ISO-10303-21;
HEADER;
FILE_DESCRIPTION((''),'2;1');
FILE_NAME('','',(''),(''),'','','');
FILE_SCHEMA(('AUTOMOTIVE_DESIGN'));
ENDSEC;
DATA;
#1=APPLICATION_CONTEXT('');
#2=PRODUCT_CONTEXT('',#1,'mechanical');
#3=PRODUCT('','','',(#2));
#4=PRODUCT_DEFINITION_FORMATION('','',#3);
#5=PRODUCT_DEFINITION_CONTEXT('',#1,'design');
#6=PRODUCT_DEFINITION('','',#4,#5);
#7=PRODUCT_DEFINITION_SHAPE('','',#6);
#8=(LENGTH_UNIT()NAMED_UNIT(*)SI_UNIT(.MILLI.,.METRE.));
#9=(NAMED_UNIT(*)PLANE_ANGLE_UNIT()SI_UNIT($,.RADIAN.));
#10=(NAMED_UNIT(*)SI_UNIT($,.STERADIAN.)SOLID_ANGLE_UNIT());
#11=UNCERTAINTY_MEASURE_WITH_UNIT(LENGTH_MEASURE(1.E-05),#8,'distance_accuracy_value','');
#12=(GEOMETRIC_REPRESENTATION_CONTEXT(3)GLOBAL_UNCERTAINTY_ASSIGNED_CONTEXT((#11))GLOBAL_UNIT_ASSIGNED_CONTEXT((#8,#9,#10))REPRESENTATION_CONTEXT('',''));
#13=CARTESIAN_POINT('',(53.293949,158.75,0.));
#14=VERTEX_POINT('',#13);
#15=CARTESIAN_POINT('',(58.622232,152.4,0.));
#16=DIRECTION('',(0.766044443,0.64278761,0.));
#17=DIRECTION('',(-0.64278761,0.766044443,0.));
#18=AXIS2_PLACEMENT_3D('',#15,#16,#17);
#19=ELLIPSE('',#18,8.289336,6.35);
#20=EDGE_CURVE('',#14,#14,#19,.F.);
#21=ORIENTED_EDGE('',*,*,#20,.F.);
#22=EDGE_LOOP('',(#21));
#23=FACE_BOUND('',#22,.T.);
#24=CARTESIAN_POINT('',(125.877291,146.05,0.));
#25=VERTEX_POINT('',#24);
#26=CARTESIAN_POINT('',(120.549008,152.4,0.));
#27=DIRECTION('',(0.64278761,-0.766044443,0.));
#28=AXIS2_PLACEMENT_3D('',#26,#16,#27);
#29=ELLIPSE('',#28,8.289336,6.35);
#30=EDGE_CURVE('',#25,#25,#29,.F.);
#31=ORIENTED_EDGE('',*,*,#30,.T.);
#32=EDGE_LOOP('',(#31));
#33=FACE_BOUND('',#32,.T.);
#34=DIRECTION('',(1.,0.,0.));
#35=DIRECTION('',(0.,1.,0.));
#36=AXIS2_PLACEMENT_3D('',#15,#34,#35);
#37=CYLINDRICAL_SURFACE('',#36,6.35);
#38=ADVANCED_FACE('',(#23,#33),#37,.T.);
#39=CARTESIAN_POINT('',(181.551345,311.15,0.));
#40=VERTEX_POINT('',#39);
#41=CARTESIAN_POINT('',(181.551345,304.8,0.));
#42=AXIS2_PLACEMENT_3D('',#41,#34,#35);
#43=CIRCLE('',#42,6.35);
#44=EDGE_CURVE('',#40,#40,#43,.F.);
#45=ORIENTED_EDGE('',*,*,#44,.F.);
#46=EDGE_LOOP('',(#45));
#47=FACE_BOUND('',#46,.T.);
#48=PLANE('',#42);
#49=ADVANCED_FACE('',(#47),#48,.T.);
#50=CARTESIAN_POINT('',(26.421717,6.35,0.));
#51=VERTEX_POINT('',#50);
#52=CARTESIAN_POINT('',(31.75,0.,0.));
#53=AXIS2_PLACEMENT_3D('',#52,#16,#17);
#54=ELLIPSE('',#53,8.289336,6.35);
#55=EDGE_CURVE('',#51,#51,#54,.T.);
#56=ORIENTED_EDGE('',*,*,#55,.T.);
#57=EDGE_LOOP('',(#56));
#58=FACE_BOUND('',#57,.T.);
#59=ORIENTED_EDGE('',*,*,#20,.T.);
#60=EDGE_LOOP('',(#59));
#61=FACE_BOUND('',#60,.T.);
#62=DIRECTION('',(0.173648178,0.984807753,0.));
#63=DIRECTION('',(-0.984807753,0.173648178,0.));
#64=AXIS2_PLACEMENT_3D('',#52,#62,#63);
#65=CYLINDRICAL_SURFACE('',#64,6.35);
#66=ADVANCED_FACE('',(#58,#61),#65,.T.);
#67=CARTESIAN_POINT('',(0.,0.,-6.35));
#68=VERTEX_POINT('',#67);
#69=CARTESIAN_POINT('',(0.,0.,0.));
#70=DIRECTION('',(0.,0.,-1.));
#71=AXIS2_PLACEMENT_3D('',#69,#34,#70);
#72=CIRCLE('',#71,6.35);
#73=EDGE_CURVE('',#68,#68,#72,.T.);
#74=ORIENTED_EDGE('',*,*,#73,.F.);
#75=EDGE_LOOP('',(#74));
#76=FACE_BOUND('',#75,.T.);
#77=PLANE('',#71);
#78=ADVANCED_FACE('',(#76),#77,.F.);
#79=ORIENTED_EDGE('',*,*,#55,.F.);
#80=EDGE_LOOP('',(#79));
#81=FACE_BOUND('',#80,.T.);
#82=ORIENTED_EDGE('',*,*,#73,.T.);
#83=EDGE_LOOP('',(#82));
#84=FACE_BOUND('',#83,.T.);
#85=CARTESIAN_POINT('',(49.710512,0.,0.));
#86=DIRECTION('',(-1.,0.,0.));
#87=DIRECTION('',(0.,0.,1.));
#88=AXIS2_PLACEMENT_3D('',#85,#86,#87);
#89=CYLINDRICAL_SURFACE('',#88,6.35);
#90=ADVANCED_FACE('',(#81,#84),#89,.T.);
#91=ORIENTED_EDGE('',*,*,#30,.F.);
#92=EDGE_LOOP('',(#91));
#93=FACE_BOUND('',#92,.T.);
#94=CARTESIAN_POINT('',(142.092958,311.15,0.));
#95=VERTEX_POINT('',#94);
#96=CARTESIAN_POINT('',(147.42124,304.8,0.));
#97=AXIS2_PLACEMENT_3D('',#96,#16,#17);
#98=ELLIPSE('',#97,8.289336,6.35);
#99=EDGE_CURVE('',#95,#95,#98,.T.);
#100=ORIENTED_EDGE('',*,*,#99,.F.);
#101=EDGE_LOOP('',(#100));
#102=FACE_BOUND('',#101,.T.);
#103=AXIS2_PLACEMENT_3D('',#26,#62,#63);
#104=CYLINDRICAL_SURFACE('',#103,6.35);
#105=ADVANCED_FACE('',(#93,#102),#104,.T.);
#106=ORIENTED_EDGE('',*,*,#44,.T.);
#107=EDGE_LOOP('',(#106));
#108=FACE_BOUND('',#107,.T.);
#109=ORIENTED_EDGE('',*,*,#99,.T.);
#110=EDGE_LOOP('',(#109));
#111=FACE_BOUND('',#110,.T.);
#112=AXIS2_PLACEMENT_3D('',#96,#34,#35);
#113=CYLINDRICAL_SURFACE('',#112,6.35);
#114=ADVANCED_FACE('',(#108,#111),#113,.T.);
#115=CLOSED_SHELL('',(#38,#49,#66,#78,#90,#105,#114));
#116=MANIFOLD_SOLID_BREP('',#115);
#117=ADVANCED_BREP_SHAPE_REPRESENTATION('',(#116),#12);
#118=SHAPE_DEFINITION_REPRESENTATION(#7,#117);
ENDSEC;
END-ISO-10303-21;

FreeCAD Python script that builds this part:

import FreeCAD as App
import Part
import Sketcher
Q = App.Units.Quantity

doc = App.newDocument("Part")
body = doc.addObject("PartDesign::Body", "Body")

sketch1 = body.newObject("Sketcher::SketchObject", "Sketch")
sketch1.AttachmentSupport = (doc.getObject("YZ_Plane"), [""])
sketch1.MapMode = "FlatFace"
sketch1.addGeometry(Part.Circle(App.Vector(0, 0, 0), App.Vector(0, 0, 1), 6.35), False)
sketch1.addConstraint(Sketcher.Constraint("Coincident", 0, 3, -1, 1))
sketch1.addConstraint(Sketcher.Constraint("Diameter", 0, Q("0.5 in")))

sketch2 = body.newObject("Sketcher::SketchObject", "Sketch001")
sketch2.AttachmentSupport = (doc.getObject("XY_Plane"), [""])
sketch2.MapMode = "FlatFace"
sketch2.addGeometry(Part.LineSegment(App.Vector(0, 0, 0), App.Vector(31.75, 0, 0)), False)
sketch2.addGeometry(Part.LineSegment(App.Vector(31.75, 0, 0), App.Vector(58.622232, 152.4, 0)), False)
sketch2.addGeometry(Part.LineSegment(App.Vector(58.622232, 152.4, 0), App.Vector(120.549008, 152.4, 0)), False)
sketch2.addGeometry(Part.LineSegment(App.Vector(120.549008, 152.4, 0), App.Vector(147.42124, 304.8, 0)), False)
sketch2.addGeometry(Part.LineSegment(App.Vector(147.42124, 304.8, 0), App.Vector(181.551345, 304.8, 0)), False)
sketch2.addConstraint(Sketcher.Constraint("Coincident", 0, 2, 1, 1))
sketch2.addConstraint(Sketcher.Constraint("Coincident", 1, 2, 2, 1))
sketch2.addConstraint(Sketcher.Constraint("Coincident", 2, 2, 3, 1))
sketch2.addConstraint(Sketcher.Constraint("Coincident", 3, 2, 4, 1))
sketch2.addConstraint(Sketcher.Constraint("Horizontal", 0))
sketch2.addConstraint(Sketcher.Constraint("Horizontal", 2))
sketch2.addConstraint(Sketcher.Constraint("Horizontal", 4))
sketch2.addConstraint(Sketcher.Constraint("Coincident", 0, 1, -1, 1))
sketch2.addConstraint(Sketcher.Constraint("Parallel", 1, 3))
sketch2.addConstraint(Sketcher.Constraint("Equal", 1, 3))
sketch2.addConstraint(Sketcher.Constraint("DistanceY", -1, 1, 1, 2, Q("6 in")))
sketch2.addConstraint(Sketcher.Constraint("Angle", 1, Q("80 deg")))
sketch2.addConstraint(Sketcher.Constraint("DistanceX", 0, 1, 0, 2, Q("1.25 in")))
sketch2.addConstraint(Sketcher.Constraint("DistanceX", 2, 1, 2, 2, Q("61.926777 mm")))
sketch2.addConstraint(Sketcher.Constraint("DistanceX", 4, 1, 4, 2, Q("34.130105 mm")))
doc.recompute()

additivepipe = body.newObject("PartDesign::AdditivePipe", "AdditivePipe")
additivepipe.Profile = sketch1
additivepipe.Spine = (sketch2, ["Edge1", "Edge2", "Edge3", "Edge4", "Edge5"])
additivepipe.Transition = "Right corner"

doc.recompute()
